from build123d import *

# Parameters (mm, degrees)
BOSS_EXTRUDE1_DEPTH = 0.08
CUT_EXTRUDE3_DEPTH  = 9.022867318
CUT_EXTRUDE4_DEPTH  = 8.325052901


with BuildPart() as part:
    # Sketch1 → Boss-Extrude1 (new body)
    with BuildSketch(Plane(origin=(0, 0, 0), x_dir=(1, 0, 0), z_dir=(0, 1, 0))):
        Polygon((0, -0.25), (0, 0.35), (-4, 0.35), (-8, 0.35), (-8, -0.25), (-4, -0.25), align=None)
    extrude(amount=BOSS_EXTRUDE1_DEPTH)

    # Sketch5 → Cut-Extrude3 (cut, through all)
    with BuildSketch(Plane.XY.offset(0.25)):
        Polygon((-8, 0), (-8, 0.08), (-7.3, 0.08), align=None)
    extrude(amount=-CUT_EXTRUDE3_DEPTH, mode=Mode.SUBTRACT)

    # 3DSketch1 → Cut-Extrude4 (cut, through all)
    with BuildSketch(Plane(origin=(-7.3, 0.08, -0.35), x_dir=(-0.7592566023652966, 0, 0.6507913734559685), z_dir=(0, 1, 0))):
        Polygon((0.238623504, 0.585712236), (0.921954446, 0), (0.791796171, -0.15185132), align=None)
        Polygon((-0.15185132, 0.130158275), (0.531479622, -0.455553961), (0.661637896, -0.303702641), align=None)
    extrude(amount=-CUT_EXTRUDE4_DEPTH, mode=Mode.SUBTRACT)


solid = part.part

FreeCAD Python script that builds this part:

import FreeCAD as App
import Part
import Sketcher


def add_polygon(sketch, points):
    """Adds a closed chain of lines whose ends are joined by coincident constraints."""
    first, n = sketch.GeometryCount, len(points)
    for a, b in zip(points, points[1:] + points[:1]):
        sketch.addGeometry(Part.LineSegment(App.Vector(*a, 0), App.Vector(*b, 0)), False)
    for i in range(n):
        sketch.addConstraint(Sketcher.Constraint("Coincident", first + i, 2, first + (i + 1) % n, 1))

doc = App.newDocument("Part")
params = doc.addObject("Spreadsheet::Sheet", "Params")
for row, (alias, value) in enumerate([
    ("sketch1_width", "8 mm"),
    ("sketch1_height", "0.6 mm"),
    ("pad1_length", "0.08 mm"),
    ("sketch2_width", "0.7 mm"),
    ("sketch2_height", "0.08 mm"),
    ("sketch3_width", "0.9 mm"),
    ("sketch3_height", "0.2 mm"),
], start=1):
    params.set(f"A{row}", alias)
    params.set(f"B{row}", "=" + value)
    params.setAlias(f"B{row}", alias)

body = doc.addObject("PartDesign::Body", "Body")

sketch1 = doc.addObject("Sketcher::SketchObject", "Sketch")
body.addObject(sketch1)
sketch1.AttachmentSupport = (doc.XZ_Plane, [""])
sketch1.MapMode = "FlatFace"
add_polygon(sketch1, [(0, 0.2), (0, -0.3), (-8, -0.3), (-8, 0.2)])
sketch1.addConstraint(Sketcher.Constraint("Vertical", 0))
sketch1.addConstraint(Sketcher.Constraint("Horizontal", 1))
sketch1.addConstraint(Sketcher.Constraint("Vertical", 2))
sketch1.addConstraint(Sketcher.Constraint("Horizontal", 3))
sketch1.addConstraint(Sketcher.Constraint("PointOnObject", 0, 2, -2))
sketch1.addConstraint(Sketcher.Constraint("DistanceX", 1, 2, 1, 1, 8.0))
sketch1.addConstraint(Sketcher.Constraint("DistanceY", 0, 2, 0, 1, 0.6))
sketch1.addConstraint(Sketcher.Constraint("DistanceY", 0, 2, -1, 1, 0.35))
sketch1.setExpression("Constraints[9]", "Params.sketch1_width")
sketch1.setExpression("Constraints[10]", "Params.sketch1_height")
pad1 = doc.addObject("PartDesign::Pad", "Pad")
body.addObject(pad1)
pad1.Profile = sketch1
pad1.setExpression("Length", "Params.pad1_length")
pad1.Reversed = True

sketch2 = doc.addObject("Sketcher::SketchObject", "Sketch001")
body.addObject(sketch2)
sketch2.AttachmentSupport = (doc.XY_Plane, [""])
sketch2.MapMode = "FlatFace"
sketch2.AttachmentOffset = App.Placement(App.Vector(0, 0, 0.25), App.Rotation())
add_polygon(sketch2, [(-8, 0.08), (-8, 0), (-7.3, 0.08)])
sketch2.addConstraint(Sketcher.Constraint("Vertical", 0))
sketch2.addConstraint(Sketcher.Constraint("Horizontal", 2))
sketch2.addConstraint(Sketcher.Constraint("PointOnObject", 0, 2, -1))
sketch2.addConstraint(Sketcher.Constraint("DistanceX", 2, 2, 2, 1, 0.7))
sketch2.addConstraint(Sketcher.Constraint("DistanceX", 0, 2, -1, 1, 8.0))
sketch2.addConstraint(Sketcher.Constraint("DistanceY", 0, 2, 0, 1, 0.08))
sketch2.setExpression("Constraints[6]", "Params.sketch2_width")
sketch2.setExpression("Constraints[8]", "Params.sketch2_height")
pocket1 = doc.addObject("PartDesign::Pocket", "Pocket")
body.addObject(pocket1)
pocket1.Profile = sketch2
pocket1.Type = "ThroughAll"

sketch3 = doc.addObject("Sketcher::SketchObject", "Sketch002")
body.addObject(sketch3)
sketch3.AttachmentSupport = (doc.XZ_Plane, [""])
sketch3.MapMode = "FlatFace"
sketch3.AttachmentOffset = App.Placement(App.Vector(0, 0, -0.08), App.Rotation())
add_polygon(sketch3, [(-8, 0.25), (-7.1, 0.25), (-8, 0.05)])
add_polygon(sketch3, [(-7.1, -0.35), (-8, -0.35), (-8, -0.15)])
sketch3.addConstraint(Sketcher.Constraint("Horizontal", 0))
sketch3.addConstraint(Sketcher.Constraint("Vertical", 2))
sketch3.addConstraint(Sketcher.Constraint("Horizontal", 3))
sketch3.addConstraint(Sketcher.Constraint("Vertical", 4))
sketch3.addConstraint(Sketcher.Constraint("Vertical", 2, 2, 3, 2))
sketch3.addConstraint(Sketcher.Constraint("Vertical", 0, 2, 5, 2))
sketch3.addConstraint(Sketcher.Constraint("Equal", 2, 4))
sketch3.addConstraint(Sketcher.Constraint("DistanceX", 0, 1, 0, 2, 0.9))
sketch3.addConstraint(Sketcher.Constraint("DistanceY", 2, 1, 2, 2, 0.2))
sketch3.addConstraint(Sketcher.Constraint("DistanceX", 1, 2, -1, 1, 8.0))
sketch3.addConstraint(Sketcher.Constraint("DistanceY", 3, 2, 1, 2, 0.4))
sketch3.addConstraint(Sketcher.Constraint("DistanceY", -1, 1, 0, 2, 0.25))
sketch3.setExpression("Constraints[13]", "Params.sketch3_width")
sketch3.setExpression("Constraints[14]", "Params.sketch3_height")
pocket2 = doc.addObject("PartDesign::Pocket", "Pocket001")
body.addObject(pocket2)
pocket2.Profile = sketch3
pocket2.Type = "ThroughAll"
pocket2.Reversed = True

doc.recompute()
